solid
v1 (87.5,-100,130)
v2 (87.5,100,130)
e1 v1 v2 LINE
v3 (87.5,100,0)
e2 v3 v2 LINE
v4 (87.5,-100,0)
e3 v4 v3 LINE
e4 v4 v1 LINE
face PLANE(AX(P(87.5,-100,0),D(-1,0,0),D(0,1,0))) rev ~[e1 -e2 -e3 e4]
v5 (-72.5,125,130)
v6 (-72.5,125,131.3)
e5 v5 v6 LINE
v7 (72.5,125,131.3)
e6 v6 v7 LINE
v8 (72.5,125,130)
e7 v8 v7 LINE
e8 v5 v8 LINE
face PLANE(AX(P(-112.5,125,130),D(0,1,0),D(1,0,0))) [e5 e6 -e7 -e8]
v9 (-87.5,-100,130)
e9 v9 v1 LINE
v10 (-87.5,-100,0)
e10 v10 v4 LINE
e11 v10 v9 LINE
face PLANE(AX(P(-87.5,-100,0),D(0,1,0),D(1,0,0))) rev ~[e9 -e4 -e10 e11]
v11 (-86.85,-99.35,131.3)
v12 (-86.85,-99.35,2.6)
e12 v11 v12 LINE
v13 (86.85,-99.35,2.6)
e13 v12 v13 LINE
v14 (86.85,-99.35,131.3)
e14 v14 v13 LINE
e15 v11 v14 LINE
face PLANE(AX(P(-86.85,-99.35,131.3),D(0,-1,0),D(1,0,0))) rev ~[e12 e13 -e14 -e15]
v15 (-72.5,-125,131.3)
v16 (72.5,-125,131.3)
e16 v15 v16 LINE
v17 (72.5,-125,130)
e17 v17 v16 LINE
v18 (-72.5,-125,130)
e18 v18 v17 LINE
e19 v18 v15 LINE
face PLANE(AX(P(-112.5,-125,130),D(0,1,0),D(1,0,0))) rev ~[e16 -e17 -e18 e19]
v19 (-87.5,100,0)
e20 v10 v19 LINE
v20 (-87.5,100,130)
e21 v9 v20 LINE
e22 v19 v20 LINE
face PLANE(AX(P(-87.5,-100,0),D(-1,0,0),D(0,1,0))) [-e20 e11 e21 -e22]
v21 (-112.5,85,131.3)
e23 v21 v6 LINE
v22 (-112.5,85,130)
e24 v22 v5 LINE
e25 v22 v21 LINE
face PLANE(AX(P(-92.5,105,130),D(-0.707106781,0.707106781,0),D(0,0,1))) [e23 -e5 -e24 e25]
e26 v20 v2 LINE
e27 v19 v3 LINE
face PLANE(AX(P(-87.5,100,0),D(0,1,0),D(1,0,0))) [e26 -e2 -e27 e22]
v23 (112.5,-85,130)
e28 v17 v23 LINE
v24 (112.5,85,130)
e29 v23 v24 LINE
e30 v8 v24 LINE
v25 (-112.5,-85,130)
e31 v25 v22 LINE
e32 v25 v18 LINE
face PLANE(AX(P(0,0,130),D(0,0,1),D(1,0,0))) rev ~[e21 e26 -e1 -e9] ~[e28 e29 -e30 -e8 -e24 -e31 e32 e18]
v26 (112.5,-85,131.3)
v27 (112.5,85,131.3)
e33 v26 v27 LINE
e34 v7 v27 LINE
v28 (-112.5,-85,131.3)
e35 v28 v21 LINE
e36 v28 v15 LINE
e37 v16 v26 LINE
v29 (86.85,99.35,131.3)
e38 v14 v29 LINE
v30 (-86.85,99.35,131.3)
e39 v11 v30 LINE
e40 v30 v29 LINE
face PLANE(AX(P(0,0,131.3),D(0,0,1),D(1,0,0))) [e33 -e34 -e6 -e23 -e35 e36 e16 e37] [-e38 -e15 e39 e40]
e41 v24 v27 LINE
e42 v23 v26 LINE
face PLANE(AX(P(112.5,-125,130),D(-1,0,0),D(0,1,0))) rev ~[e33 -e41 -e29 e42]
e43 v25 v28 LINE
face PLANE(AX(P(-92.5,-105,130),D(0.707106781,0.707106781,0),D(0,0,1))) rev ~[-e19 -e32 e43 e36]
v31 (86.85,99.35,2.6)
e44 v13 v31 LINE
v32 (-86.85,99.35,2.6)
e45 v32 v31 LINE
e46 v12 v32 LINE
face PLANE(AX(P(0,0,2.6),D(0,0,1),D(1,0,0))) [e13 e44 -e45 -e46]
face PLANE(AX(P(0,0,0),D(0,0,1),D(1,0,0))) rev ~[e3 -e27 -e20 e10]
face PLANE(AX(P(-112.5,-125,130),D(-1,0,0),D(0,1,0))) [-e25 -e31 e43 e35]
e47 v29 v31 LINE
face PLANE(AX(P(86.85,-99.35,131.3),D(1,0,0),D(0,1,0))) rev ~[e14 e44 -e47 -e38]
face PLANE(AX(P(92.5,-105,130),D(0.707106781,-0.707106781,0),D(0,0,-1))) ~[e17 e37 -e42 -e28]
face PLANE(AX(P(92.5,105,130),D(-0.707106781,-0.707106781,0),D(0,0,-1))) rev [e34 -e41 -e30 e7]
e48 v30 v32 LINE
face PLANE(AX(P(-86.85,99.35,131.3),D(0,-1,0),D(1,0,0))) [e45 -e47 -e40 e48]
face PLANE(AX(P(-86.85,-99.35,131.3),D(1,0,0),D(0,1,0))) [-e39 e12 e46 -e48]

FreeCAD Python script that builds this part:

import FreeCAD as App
import Part
import Sketcher
Q = App.Units.Quantity


def edges_at(feature, points):
    """Names of the edges that pass closest to the given points."""
    edges = feature.Shape.Edges
    near = lambda p: min(range(len(edges)), key=lambda i: edges[i].distToShape(Part.Vertex(*p))[0])
    return sorted({f"Edge{near(p) + 1}" for p in points})


def add_polygon(sketch, points):
    """Adds a closed chain of lines whose ends are joined by coincident constraints."""
    first, n = sketch.GeometryCount, len(points)
    for a, b in zip(points, points[1:] + points[:1]):
        sketch.addGeometry(Part.LineSegment(App.Vector(*a, 0), App.Vector(*b, 0)), False)
    for i in range(n):
        sketch.addConstraint(Sketcher.Constraint("Coincident", first + i, 2, first + (i + 1) % n, 1))

doc = App.newDocument("Part")
body = doc.addObject("PartDesign::Body", "Body")

# Sketch on XY plane
sketch1 = body.newObject("Sketcher::SketchObject", "Sketch")
sketch1.AttachmentSupport = (doc.getObject("XY_Plane"), [""])
sketch1.MapMode = "FlatFace"
add_polygon(sketch1, [(-87.5, 100), (-87.5, -100), (87.5, -100), (87.5, 100)])  # lines 0-3
sketch1.addConstraint([
    Sketcher.Constraint("Vertical", 0),
    Sketcher.Constraint("Horizontal", 1),
    Sketcher.Constraint("Vertical", 2),
    Sketcher.Constraint("Horizontal", 3),
    Sketcher.Constraint("Symmetric", 0, 2, 2, 2, -1, 1),
    Sketcher.Constraint("DistanceX", 1, 1, 1, 2, Q("175 mm")),
    Sketcher.Constraint("DistanceY", 0, 2, 0, 1, Q("200 mm")),
])
pad1 = body.newObject("PartDesign::Pad", "Pad")
pad1.Profile = sketch1
pad1.Length = 130

# Sketch on XY plane
sketch2 = body.newObject("Sketcher::SketchObject", "Sketch001")
sketch2.AttachmentSupport = (doc.getObject("XY_Plane"), [""])
sketch2.MapMode = "FlatFace"
sketch2.AttachmentOffset = App.Placement(App.Vector(0, 0, 130), App.Rotation())
add_polygon(sketch2, [(-112.5, 125), (-112.5, -125), (112.5, -125), (112.5, 125)])  # lines 0-3
sketch2.addConstraint([
    Sketcher.Constraint("Vertical", 0),
    Sketcher.Constraint("Horizontal", 1),
    Sketcher.Constraint("Vertical", 2),
    Sketcher.Constraint("Horizontal", 3),
    Sketcher.Constraint("Symmetric", 0, 2, 2, 2, -1, 1),
    Sketcher.Constraint("DistanceX", 1, 1, 1, 2, Q("225 mm")),
    Sketcher.Constraint("DistanceY", 0, 2, 0, 1, Q("250 mm")),
])
pad2 = body.newObject("PartDesign::Pad", "Pad001")
pad2.Profile = sketch2
pad2.Length = 1.3

# Sketch on XY plane
sketch3 = body.newObject("Sketcher::SketchObject", "Sketch002")
sketch3.AttachmentSupport = (doc.getObject("XY_Plane"), [""])
sketch3.MapMode = "FlatFace"
sketch3.AttachmentOffset = App.Placement(App.Vector(0, 0, 131.3), App.Rotation())
add_polygon(sketch3, [(-86.85, 99.35), (-86.85, -99.35), (86.85, -99.35), (86.85, 99.35)])  # lines 0-3
sketch3.addConstraint([
    Sketcher.Constraint("Vertical", 0),
    Sketcher.Constraint("Horizontal", 1),
    Sketcher.Constraint("Vertical", 2),
    Sketcher.Constraint("Horizontal", 3),
    Sketcher.Constraint("Symmetric", 0, 2, 2, 2, -1, 1),
    Sketcher.Constraint("DistanceX", 1, 1, 1, 2, Q("173.7 mm")),
    Sketcher.Constraint("DistanceY", 0, 2, 0, 1, Q("198.7 mm")),
])
pocket1 = body.newObject("PartDesign::Pocket", "Pocket")
pocket1.Profile = sketch3
pocket1.Length = 128.7
doc.recompute()

chamfer = body.newObject("PartDesign::Chamfer", "Chamfer")
chamfer.Base = (pocket1, edges_at(pocket1, [
    (112.5, -125, 130.65),
    (-112.5, -125, 130.65),
    (112.5, 125, 130.65),
    (-112.5, 125, 130.65),
]))
chamfer.Size = 40

doc.recompute()
